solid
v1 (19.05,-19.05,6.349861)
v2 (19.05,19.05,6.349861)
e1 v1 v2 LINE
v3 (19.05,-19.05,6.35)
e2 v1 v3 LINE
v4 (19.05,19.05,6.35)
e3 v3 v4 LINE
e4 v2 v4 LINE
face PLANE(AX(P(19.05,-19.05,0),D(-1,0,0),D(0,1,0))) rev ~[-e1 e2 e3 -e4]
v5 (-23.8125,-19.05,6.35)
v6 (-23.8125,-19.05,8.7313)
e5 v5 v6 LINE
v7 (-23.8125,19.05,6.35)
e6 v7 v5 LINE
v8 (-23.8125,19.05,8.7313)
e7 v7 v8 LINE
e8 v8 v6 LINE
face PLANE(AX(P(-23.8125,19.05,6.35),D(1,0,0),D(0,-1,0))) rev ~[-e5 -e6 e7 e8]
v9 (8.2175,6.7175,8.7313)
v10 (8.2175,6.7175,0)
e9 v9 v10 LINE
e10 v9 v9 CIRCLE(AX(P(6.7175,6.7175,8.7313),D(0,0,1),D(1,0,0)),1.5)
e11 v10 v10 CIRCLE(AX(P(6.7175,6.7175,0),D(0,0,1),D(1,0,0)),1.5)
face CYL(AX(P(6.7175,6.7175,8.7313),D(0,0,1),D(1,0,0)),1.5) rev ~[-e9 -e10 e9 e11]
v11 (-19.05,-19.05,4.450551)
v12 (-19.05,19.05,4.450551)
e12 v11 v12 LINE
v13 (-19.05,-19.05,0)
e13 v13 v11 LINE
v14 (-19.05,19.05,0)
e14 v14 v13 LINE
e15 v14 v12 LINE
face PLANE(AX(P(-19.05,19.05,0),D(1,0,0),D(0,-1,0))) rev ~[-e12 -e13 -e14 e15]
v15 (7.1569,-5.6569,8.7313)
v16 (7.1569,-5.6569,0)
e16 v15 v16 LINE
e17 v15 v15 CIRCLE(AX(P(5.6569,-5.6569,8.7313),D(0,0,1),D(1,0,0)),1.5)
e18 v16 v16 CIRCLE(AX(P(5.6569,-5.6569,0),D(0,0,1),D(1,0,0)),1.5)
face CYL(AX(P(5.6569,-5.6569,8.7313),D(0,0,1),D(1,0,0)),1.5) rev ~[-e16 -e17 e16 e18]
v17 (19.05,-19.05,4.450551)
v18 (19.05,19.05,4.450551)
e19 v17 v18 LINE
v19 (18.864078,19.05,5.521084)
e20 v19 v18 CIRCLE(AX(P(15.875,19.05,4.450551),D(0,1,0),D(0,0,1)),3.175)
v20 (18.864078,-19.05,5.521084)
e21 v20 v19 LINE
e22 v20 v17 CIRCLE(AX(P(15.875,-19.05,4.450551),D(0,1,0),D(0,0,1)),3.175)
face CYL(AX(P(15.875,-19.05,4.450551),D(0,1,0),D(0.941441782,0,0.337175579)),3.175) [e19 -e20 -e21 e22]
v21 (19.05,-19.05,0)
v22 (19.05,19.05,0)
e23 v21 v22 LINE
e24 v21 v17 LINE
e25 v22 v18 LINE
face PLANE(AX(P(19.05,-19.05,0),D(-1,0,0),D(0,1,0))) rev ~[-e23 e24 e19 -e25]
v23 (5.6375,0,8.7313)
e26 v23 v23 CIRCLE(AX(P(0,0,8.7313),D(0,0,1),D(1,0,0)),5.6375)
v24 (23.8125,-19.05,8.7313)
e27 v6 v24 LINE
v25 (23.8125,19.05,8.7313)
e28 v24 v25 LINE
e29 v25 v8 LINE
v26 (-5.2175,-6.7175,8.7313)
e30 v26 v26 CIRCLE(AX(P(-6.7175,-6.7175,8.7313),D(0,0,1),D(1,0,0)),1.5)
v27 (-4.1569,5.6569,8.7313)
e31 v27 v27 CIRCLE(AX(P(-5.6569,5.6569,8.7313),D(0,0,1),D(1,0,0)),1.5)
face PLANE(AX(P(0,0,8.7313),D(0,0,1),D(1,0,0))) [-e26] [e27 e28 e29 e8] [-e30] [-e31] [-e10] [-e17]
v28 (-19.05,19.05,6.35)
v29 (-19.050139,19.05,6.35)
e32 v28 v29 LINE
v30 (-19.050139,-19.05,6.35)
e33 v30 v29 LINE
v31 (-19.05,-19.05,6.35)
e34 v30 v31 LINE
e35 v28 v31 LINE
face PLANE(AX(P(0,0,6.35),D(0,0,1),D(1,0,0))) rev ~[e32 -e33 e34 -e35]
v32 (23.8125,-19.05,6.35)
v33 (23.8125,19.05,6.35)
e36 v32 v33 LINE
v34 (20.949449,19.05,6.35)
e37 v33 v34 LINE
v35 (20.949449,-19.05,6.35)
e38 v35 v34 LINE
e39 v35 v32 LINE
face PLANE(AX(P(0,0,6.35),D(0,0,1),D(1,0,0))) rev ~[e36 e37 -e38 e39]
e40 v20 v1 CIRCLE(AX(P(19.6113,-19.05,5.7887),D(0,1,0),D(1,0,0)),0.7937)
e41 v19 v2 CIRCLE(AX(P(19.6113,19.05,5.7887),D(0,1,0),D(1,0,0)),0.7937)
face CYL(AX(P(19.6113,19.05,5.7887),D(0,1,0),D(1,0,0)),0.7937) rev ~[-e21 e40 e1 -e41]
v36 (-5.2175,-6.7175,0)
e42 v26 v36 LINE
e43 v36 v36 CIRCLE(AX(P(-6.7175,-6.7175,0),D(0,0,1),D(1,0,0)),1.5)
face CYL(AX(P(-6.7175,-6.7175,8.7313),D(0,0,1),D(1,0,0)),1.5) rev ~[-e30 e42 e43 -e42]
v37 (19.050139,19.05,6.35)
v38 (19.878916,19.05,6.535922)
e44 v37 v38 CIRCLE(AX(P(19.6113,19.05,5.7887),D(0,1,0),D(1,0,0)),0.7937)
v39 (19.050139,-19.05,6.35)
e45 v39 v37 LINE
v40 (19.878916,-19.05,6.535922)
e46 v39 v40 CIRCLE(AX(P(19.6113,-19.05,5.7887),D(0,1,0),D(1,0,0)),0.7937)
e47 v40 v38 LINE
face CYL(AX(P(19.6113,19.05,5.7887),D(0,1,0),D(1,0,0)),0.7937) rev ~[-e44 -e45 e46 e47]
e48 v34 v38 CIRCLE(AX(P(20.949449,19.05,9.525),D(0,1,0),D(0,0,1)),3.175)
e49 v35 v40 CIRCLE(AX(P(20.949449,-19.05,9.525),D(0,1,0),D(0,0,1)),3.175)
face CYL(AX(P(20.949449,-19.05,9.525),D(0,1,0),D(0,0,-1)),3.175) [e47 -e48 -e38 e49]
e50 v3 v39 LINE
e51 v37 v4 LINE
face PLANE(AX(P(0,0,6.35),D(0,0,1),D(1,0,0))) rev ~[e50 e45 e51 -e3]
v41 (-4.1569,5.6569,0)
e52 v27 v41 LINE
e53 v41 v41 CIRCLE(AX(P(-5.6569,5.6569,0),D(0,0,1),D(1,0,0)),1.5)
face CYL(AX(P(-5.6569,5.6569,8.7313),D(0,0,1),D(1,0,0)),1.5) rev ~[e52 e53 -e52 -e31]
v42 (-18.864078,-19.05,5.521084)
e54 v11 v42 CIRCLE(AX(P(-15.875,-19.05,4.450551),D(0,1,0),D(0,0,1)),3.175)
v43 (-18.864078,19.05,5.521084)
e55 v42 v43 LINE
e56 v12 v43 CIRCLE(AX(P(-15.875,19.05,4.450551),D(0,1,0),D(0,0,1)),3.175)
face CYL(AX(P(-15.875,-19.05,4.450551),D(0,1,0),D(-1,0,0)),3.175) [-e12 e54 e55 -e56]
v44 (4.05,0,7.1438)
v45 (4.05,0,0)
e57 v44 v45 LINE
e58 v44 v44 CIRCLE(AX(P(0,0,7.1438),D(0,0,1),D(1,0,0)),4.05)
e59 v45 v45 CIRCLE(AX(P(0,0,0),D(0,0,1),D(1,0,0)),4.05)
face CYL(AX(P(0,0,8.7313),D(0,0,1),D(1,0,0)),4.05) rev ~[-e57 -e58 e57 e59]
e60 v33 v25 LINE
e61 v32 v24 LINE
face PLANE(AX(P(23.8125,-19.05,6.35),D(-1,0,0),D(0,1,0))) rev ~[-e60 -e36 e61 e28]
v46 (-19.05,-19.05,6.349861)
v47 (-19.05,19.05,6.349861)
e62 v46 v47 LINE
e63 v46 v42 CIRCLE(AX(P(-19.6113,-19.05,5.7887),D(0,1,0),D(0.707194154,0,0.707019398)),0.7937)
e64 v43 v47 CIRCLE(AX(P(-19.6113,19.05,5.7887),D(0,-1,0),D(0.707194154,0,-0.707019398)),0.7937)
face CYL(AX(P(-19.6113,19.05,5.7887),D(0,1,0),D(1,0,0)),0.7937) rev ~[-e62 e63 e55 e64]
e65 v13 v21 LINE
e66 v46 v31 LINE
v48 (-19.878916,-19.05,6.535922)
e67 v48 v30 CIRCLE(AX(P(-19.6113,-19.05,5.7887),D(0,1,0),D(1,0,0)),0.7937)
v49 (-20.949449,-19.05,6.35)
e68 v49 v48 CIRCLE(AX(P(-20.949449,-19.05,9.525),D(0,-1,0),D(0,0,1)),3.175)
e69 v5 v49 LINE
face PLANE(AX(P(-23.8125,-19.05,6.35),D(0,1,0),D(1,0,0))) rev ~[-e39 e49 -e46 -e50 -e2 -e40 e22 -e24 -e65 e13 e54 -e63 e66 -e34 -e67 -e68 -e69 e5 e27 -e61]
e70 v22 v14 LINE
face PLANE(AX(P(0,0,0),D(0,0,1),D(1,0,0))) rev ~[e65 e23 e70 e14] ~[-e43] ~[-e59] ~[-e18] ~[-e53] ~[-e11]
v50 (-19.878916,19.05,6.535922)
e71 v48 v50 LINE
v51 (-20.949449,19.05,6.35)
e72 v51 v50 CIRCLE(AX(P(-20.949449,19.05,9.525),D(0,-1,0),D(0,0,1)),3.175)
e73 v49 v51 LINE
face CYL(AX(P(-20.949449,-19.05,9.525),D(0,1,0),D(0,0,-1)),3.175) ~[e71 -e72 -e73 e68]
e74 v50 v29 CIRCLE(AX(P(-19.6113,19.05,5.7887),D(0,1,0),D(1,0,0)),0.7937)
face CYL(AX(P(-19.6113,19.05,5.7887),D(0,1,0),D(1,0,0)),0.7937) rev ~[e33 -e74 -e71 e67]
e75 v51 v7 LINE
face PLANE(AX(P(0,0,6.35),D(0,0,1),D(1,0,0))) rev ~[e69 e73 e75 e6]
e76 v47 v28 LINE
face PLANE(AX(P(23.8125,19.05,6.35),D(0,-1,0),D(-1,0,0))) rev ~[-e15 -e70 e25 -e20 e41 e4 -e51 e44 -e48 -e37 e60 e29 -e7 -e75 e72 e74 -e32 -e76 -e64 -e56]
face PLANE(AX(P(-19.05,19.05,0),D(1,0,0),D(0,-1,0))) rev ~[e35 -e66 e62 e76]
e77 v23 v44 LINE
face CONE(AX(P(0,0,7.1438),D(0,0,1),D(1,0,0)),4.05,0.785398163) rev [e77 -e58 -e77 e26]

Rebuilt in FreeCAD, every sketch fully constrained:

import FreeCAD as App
import Part
import Sketcher

V = App.Vector
Q = App.Units.Quantity


def edges_at(feature, points):
    """Names of the edges that pass closest to the given points."""
    edges = feature.Shape.Edges
    near = lambda p: min(range(len(edges)), key=lambda i: edges[i].distToShape(Part.Vertex(*p))[0])
    return sorted({f"Edge{near(p) + 1}" for p in points})

doc = App.newDocument("Part")
params = doc.addObject("Spreadsheet::Sheet", "Params")
for row, (alias, value) in enumerate([
    ("sketch1_width", "1.5 in"),
    ("pad1_length", "0.25 in"),
    ("sketch2_width", "1.875 in"),
    ("sketch2_height", "1.5 in"),
    ("pad2_length", "0.093752 in"),
    ("sketch3_diameter", "0.0625 in"),
    ("fillet_radius", "0.125 in"),
    ("chamfer_size", "0.0625 in"),
], start=1):
    params.set(f"A{row}", alias)
    params.set(f"B{row}", "=" + value)
    params.setAlias(f"B{row}", alias)

body = doc.addObject("PartDesign::Body", "Body")

sketch1 = body.newObject("Sketcher::SketchObject", "Sketch")
sketch1.AttachmentSupport = (doc.getObject("XY_Plane"), [""])
sketch1.MapMode = "FlatFace"
sketch1.addGeometry(Part.LineSegment(V(-19, 19, 0), V(-19, -19, 0)), False)
sketch1.addGeometry(Part.LineSegment(V(-19, -19, 0), V(19, -19, 0)), False)
sketch1.addGeometry(Part.LineSegment(V(19, -19, 0), V(19, 19, 0)), False)
sketch1.addGeometry(Part.LineSegment(V(19, 19, 0), V(-19, 19, 0)), False)
sketch1.addConstraint(Sketcher.Constraint("Coincident", 0, 2, 1, 1))
sketch1.addConstraint(Sketcher.Constraint("Coincident", 1, 2, 2, 1))
sketch1.addConstraint(Sketcher.Constraint("Coincident", 2, 2, 3, 1))
sketch1.addConstraint(Sketcher.Constraint("Coincident", 3, 2, 0, 1))
sketch1.addConstraint(Sketcher.Constraint("Vertical", 0))
sketch1.addConstraint(Sketcher.Constraint("Horizontal", 1))
sketch1.addConstraint(Sketcher.Constraint("Vertical", 2))
sketch1.addConstraint(Sketcher.Constraint("Horizontal", 3))
sketch1.addConstraint(Sketcher.Constraint("Symmetric", 0, 2, 2, 2, -1, 1))
sketch1.addConstraint(Sketcher.Constraint("Equal", 3, 0))
sketch1.addConstraint(Sketcher.Constraint("DistanceX", 1, 1, 1, 2, Q("1.5 in")))
sketch1.setExpression("Constraints[10]", "Params.sketch1_width")
pad1 = body.newObject("PartDesign::Pad", "Pad")
pad1.Profile = sketch1
pad1.setExpression("Length", "Params.pad1_length")

sketch2 = body.newObject("Sketcher::SketchObject", "Sketch001")
sketch2.AttachmentSupport = (doc.getObject("XY_Plane"), [""])
sketch2.MapMode = "FlatFace"
sketch2.AttachmentOffset = App.Placement(V(0, 0, 0.25 * 25.4), App.Rotation())
sketch2.addGeometry(Part.LineSegment(V(-24, 19, 0), V(-24, -19, 0)), False)
sketch2.addGeometry(Part.LineSegment(V(-24, -19, 0), V(24, -19, 0)), False)
sketch2.addGeometry(Part.LineSegment(V(24, -19, 0), V(24, 19, 0)), False)
sketch2.addGeometry(Part.LineSegment(V(24, 19, 0), V(-24, 19, 0)), False)
sketch2.addConstraint(Sketcher.Constraint("Coincident", 0, 2, 1, 1))
sketch2.addConstraint(Sketcher.Constraint("Coincident", 1, 2, 2, 1))
sketch2.addConstraint(Sketcher.Constraint("Coincident", 2, 2, 3, 1))
sketch2.addConstraint(Sketcher.Constraint("Coincident", 3, 2, 0, 1))
sketch2.addConstraint(Sketcher.Constraint("Vertical", 0))
sketch2.addConstraint(Sketcher.Constraint("Horizontal", 1))
sketch2.addConstraint(Sketcher.Constraint("Vertical", 2))
sketch2.addConstraint(Sketcher.Constraint("Horizontal", 3))
sketch2.addConstraint(Sketcher.Constraint("Symmetric", 0, 2, 2, 2, -1, 1))
sketch2.addConstraint(Sketcher.Constraint("DistanceX", 1, 1, 1, 2, Q("1.875 in")))
sketch2.addConstraint(Sketcher.Constraint("DistanceY", 0, 2, 0, 1, Q("1.5 in")))
sketch2.setExpression("Constraints[9]", "Params.sketch2_width")
sketch2.setExpression("Constraints[10]", "Params.sketch2_height")
pad2 = body.newObject("PartDesign::Pad", "Pad001")
pad2.Profile = sketch2
pad2.setExpression("Length", "Params.pad2_length")

sketch3 = body.newObject("Sketcher::SketchObject", "Sketch002")
sketch3.AttachmentSupport = (doc.getObject("XZ_Plane"), [""])
sketch3.MapMode = "FlatFace"
sketch3.AttachmentOffset = App.Placement(V(0, 0, -0.75 * 25.4), App.Rotation())
sketch3.addGeometry(Part.Circle(V(-19.6, 5.8, 0), V(0, 0, 1), 0.8), False)
sketch3.addGeometry(Part.Circle(V(19.6, 5.8, 0), V(0, 0, 1), 0.8), False)
sketch3.addConstraint(Sketcher.Constraint("Equal", 0, 1))
sketch3.addConstraint(Sketcher.Constraint("Symmetric", 0, 3, 1, 3, -2))
sketch3.addConstraint(Sketcher.Constraint("Diameter", 0, Q("0.0625 in")))
sketch3.addConstraint(Sketcher.Constraint("DistanceX", 0, 3, -1, 1, Q("0.7721 in")))
sketch3.addConstraint(Sketcher.Constraint("DistanceY", -1, 1, 0, 3, Q("0.2279 in")))
sketch3.setExpression("Constraints[2]", "Params.sketch3_diameter")
pocket1 = body.newObject("PartDesign::Pocket", "Pocket")
pocket1.Profile = sketch3
pocket1.Type = "ThroughAll"
pocket1.Reversed = True
doc.recompute()

fillet = body.newObject("PartDesign::Fillet", "Fillet")
fillet.Base = (pocket1, edges_at(pocket1, [
    (-19.05, 0, 5.228),
    (-20.172, 0, 6.35),
    (20.172, 0, 6.35),
    (19.05, 0, 5.228),
]))
fillet.setExpression("Radius", "Params.fillet_radius")

sketch4 = body.newObject("Sketcher::SketchObject", "Sketch003")
sketch4.AttachmentSupport = (doc.getObject("XY_Plane"), [""])
sketch4.MapMode = "FlatFace"
sketch4.AttachmentOffset = App.Placement(V(0, 0, 0.343752 * 25.4), App.Rotation())
sketch4.addGeometry(Part.Circle(V(0, 0, 0), V(0, 0, 1), 4), False)
sketch4.addGeometry(Part.Circle(V(-5.7, 5.7, 0), V(0, 0, 1), 1.5), False)
sketch4.addGeometry(Part.Circle(V(-6.7, -6.7, 0), V(0, 0, 1), 1.5), False)
sketch4.addGeometry(Part.Circle(V(6.7, 6.7, 0), V(0, 0, 1), 1.5), False)
sketch4.addGeometry(Part.Circle(V(5.7, -5.7, 0), V(0, 0, 1), 1.5), False)
sketch4.addConstraint(Sketcher.Constraint("Coincident", 0, 3, -1, 1))
sketch4.addConstraint(Sketcher.Constraint("Equal", 1, 2))
sketch4.addConstraint(Sketcher.Constraint("Equal", 2, 3))
sketch4.addConstraint(Sketcher.Constraint("Equal", 3, 4))
sketch4.addConstraint(Sketcher.Constraint("Symmetric", 2, 3, 3, 3, -1, 1))
sketch4.addConstraint(Sketcher.Constraint("Symmetric", 1, 3, 4, 3, -1, 1))
sketch4.addConstraint(Sketcher.Constraint("Diameter", 0, Q("0.3189 in")))
sketch4.addConstraint(Sketcher.Constraint("Diameter", 1, Q("0.1181 in")))
sketch4.addConstraint(Sketcher.Constraint("DistanceX", 1, 3, -1, 1, 5.657))
sketch4.addConstraint(Sketcher.Constraint("DistanceY", -1, 1, 1, 3, 5.657))
sketch4.addConstraint(Sketcher.Constraint("DistanceX", 2, 3, -1, 1, 6.7175))
sketch4.addConstraint(Sketcher.Constraint("DistanceY", 2, 3, -1, 1, 6.7175))
pocket2 = body.newObject("PartDesign::Pocket", "Pocket001")
pocket2.Profile = sketch4
pocket2.Type = "ThroughAll"
doc.recompute()

chamfer = body.newObject("PartDesign::Chamfer", "Chamfer")
chamfer.Base = (pocket2, edges_at(pocket2, [(-4.05, 0, 8.731)]))
chamfer.setExpression("Size", "Params.chamfer_size")

doc.recompute()
